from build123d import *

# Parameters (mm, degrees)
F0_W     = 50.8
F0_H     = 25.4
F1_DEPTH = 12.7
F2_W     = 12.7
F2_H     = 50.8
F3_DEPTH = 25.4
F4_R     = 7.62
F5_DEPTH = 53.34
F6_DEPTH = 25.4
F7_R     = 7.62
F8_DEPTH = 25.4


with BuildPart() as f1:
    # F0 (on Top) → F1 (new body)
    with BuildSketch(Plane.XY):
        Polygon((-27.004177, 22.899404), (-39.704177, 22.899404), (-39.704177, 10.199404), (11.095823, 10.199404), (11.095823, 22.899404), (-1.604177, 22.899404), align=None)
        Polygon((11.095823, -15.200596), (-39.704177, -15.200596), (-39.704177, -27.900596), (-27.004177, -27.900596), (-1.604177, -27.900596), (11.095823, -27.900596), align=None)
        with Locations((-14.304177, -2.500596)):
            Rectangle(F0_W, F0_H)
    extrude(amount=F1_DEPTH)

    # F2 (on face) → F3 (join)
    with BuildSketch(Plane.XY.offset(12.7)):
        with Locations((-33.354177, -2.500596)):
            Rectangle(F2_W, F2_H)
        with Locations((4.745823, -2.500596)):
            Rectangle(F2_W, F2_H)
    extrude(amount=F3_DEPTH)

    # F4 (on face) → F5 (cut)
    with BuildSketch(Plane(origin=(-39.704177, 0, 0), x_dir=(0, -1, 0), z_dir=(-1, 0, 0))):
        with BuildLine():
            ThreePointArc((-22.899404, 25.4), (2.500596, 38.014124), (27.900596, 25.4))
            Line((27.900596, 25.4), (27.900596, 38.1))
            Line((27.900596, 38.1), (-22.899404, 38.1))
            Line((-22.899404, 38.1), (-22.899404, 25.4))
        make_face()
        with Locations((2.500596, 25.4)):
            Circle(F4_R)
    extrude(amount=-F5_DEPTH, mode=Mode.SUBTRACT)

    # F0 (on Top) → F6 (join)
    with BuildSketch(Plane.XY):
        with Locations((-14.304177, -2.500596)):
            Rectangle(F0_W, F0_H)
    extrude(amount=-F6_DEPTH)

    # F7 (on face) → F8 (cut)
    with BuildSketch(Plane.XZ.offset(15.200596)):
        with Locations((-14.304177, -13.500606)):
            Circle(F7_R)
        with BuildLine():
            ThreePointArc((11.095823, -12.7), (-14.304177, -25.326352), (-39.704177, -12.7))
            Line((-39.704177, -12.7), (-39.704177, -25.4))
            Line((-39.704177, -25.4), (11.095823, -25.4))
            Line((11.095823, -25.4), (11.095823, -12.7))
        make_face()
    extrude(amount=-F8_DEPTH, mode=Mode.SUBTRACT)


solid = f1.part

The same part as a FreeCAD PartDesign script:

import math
import FreeCAD as App
import Part
import Sketcher
from FreeCAD import Vector
Q = App.Units.Quantity

doc = App.newDocument("Part")
params = doc.addObject("Spreadsheet::Sheet", "Params")
for row, (alias, value) in enumerate([
    ("sketch1_width", "2 in"),
    ("pad1_length", "0.5 in"),
    ("sketch2_height", "2 in"),
    ("sketch2_width", "0.5 in"),
    ("pad2_length", "1 in"),
    ("sketch3_diameter", "0.6 in"),
    ("sketch3_width", "2 in"),
    ("sketch3_height", "0.5 in"),
    ("pocket1_length", "2.1 in"),
    ("sketch4_width", "2 in"),
    ("sketch4_height", "1 in"),
    ("pad3_length", "1 in"),
    ("sketch5_diameter", "0.6 in"),
    ("sketch5_width", "2 in"),
    ("sketch5_height", "0.5 in"),
    ("pocket2_length", "1 in"),
], start=1):
    params.set(f"A{row}", alias)
    params.set(f"B{row}", "=" + value)
    params.setAlias(f"B{row}", alias)

body = doc.addObject("PartDesign::Body", "Body")

# Sketch on XY plane
sketch1 = doc.addObject("Sketcher::SketchObject", "Sketch")
body.addObject(sketch1)
sketch1.AttachmentSupport = (doc.XY_Plane, [""])
sketch1.MapMode = "FlatFace"
sketch1.addGeometry([
    Part.LineSegment(Vector(-40, 23, 0), Vector(-40, -28, 0)),
    Part.LineSegment(Vector(-40, -28, 0), Vector(11, -28, 0)),
    Part.LineSegment(Vector(11, -28, 0), Vector(11, 23, 0)),
    Part.LineSegment(Vector(11, 23, 0), Vector(-40, 23, 0)),
], False)
sketch1.addConstraint([
    Sketcher.Constraint("Coincident", 0, 2, 1, 1),
    Sketcher.Constraint("Coincident", 1, 2, 2, 1),
    Sketcher.Constraint("Coincident", 2, 2, 3, 1),
    Sketcher.Constraint("Coincident", 3, 2, 0, 1),
    Sketcher.Constraint("Vertical", 0),
    Sketcher.Constraint("Horizontal", 1),
    Sketcher.Constraint("Vertical", 2),
    Sketcher.Constraint("Horizontal", 3),
    Sketcher.Constraint("Equal", 3, 0),
    Sketcher.Constraint("DistanceX", 1, 1, 1, 2, Q("2 in")),
    Sketcher.Constraint("DistanceX", 0, 2, -1, 1, 39.704177),
    Sketcher.Constraint("DistanceY", 0, 2, -1, 1, 27.900596),
])
sketch1.setExpression("Constraints[9]", "Params.sketch1_width")
pad1 = doc.addObject("PartDesign::Pad", "Pad")
body.addObject(pad1)
pad1.Profile = sketch1
pad1.setExpression("Length", "Params.pad1_length")

# Sketch on XY plane
sketch2 = doc.addObject("Sketcher::SketchObject", "Sketch001")
body.addObject(sketch2)
sketch2.AttachmentSupport = (doc.XY_Plane, [""])
sketch2.MapMode = "FlatFace"
sketch2.AttachmentOffset = App.Placement(Vector(0, 0, 0.5 * 25.4), App.Rotation())
sketch2.addGeometry([
    Part.LineSegment(Vector(-40, 23, 0), Vector(-40, -28, 0)),  # 0
    Part.LineSegment(Vector(-40, -28, 0), Vector(-27, -28, 0)),  # 1
    Part.LineSegment(Vector(-27, -28, 0), Vector(-27, 23, 0)),  # 2
    Part.LineSegment(Vector(-27, 23, 0), Vector(-40, 23, 0)),  # 3
    Part.LineSegment(Vector(-2, 23, 0), Vector(-2, -28, 0)),  # 4
    Part.LineSegment(Vector(-2, -28, 0), Vector(11, -28, 0)),  # 5
    Part.LineSegment(Vector(11, -28, 0), Vector(11, 23, 0)),  # 6
    Part.LineSegment(Vector(11, 23, 0), Vector(-2, 23, 0)),  # 7
], False)
sketch2.addConstraint([
    Sketcher.Constraint("Coincident", 0, 2, 1, 1),
    Sketcher.Constraint("Coincident", 1, 2, 2, 1),
    Sketcher.Constraint("Coincident", 2, 2, 3, 1),
    Sketcher.Constraint("Coincident", 3, 2, 0, 1),
    Sketcher.Constraint("Coincident", 4, 2, 5, 1),
    Sketcher.Constraint("Coincident", 5, 2, 6, 1),
    Sketcher.Constraint("Coincident", 6, 2, 7, 1),
    Sketcher.Constraint("Coincident", 7, 2, 4, 1),
    Sketcher.Constraint("Vertical", 0),
    Sketcher.Constraint("Horizontal", 1),
    Sketcher.Constraint("Vertical", 2),
    Sketcher.Constraint("Horizontal", 3),
    Sketcher.Constraint("Vertical", 4),
    Sketcher.Constraint("Horizontal", 5),
    Sketcher.Constraint("Vertical", 6),
    Sketcher.Constraint("Horizontal", 7),
    Sketcher.Constraint("Horizontal", 1, 2, 4, 2),
    Sketcher.Constraint("Horizontal", 3, 2, 6, 2),
    Sketcher.Constraint("Equal", 3, 5),
    Sketcher.Constraint("DistanceY", 0, 2, 0, 1, Q("2 in")),
    Sketcher.Constraint("DistanceX", 1, 1, 1, 2, Q("0.5 in")),
    Sketcher.Constraint("DistanceX", 1, 2, 4, 2, Q("1 in")),
    Sketcher.Constraint("DistanceX", 0, 2, -1, 1, 39.704177),
    Sketcher.Constraint("DistanceY", 0, 2, -1, 1, 27.900596),
])
sketch2.setExpression("Constraints[19]", "Params.sketch2_height")
sketch2.setExpression("Constraints[20]", "Params.sketch2_width")
pad2 = doc.addObject("PartDesign::Pad", "Pad001")
body.addObject(pad2)
pad2.Profile = sketch2
pad2.setExpression("Length", "Params.pad2_length")

# Sketch on YZ plane
sketch3 = doc.addObject("Sketcher::SketchObject", "Sketch002")
body.addObject(sketch3)
sketch3.AttachmentSupport = (doc.YZ_Plane, [""])
sketch3.MapMode = "FlatFace"
sketch3.AttachmentOffset = App.Placement(Vector(0, 0, -39.704177), App.Rotation())
sketch3.addGeometry([
    Part.ArcOfCircle(Part.Circle(Vector(-3, 6, 0), Vector(0, 0, 1), 32), math.radians(37), math.radians(143)),  # 0
    Part.LineSegment(Vector(-28, 25, 0), Vector(-28, 38, 0)),  # 1
    Part.LineSegment(Vector(-28, 38, 0), Vector(23, 38, 0)),  # 2
    Part.LineSegment(Vector(23, 38, 0), Vector(23, 25, 0)),  # 3
    Part.Circle(Vector(-3, 25, 0), Vector(0, 0, 1), 8),  # 4
], False)
sketch3.addConstraint([
    Sketcher.Constraint("Coincident", 0, 2, 1, 1),
    Sketcher.Constraint("Coincident", 1, 2, 2, 1),
    Sketcher.Constraint("Coincident", 2, 2, 3, 1),
    Sketcher.Constraint("Coincident", 3, 2, 0, 1),
    Sketcher.Constraint("Vertical", 1),
    Sketcher.Constraint("Horizontal", 2),
    Sketcher.Constraint("Vertical", 3),
    Sketcher.Constraint("Horizontal", 4, 3, 0, 2),
    Sketcher.Constraint("Horizontal", 0, 2, 3, 2),
    Sketcher.Constraint("Vertical", 0, 3, 4, 3),
    Sketcher.Constraint("Diameter", 4, Q("0.6 in")),
    Sketcher.Constraint("DistanceX", 2, 1, 2, 2, Q("2 in")),
    Sketcher.Constraint("DistanceY", 1, 1, 1, 2, Q("0.5 in")),
    Sketcher.Constraint("DistanceY", -1, 1, 4, 3, Q("1 in")),
    Sketcher.Constraint("Radius", 0, 31.879983),
    Sketcher.Constraint("DistanceX", 0, 3, -1, 1, 2.500596),
])
sketch3.setExpression("Constraints[10]", "Params.sketch3_diameter")
sketch3.setExpression("Constraints[11]", "Params.sketch3_width")
sketch3.setExpression("Constraints[12]", "Params.sketch3_height")
pocket1 = doc.addObject("PartDesign::Pocket", "Pocket")
body.addObject(pocket1)
pocket1.Profile = sketch3
pocket1.setExpression("Length", "Params.pocket1_length")
pocket1.Reversed = True

# Sketch on XY plane
sketch4 = doc.addObject("Sketcher::SketchObject", "Sketch003")
body.addObject(sketch4)
sketch4.AttachmentSupport = (doc.XY_Plane, [""])
sketch4.MapMode = "FlatFace"
sketch4.addGeometry([
    Part.LineSegment(Vector(-40, 10, 0), Vector(-40, -15, 0)),
    Part.LineSegment(Vector(-40, -15, 0), Vector(11, -15, 0)),
    Part.LineSegment(Vector(11, -15, 0), Vector(11, 10, 0)),
    Part.LineSegment(Vector(11, 10, 0), Vector(-40, 10, 0)),
], False)
sketch4.addConstraint([
    Sketcher.Constraint("Coincident", 0, 2, 1, 1),
    Sketcher.Constraint("Coincident", 1, 2, 2, 1),
    Sketcher.Constraint("Coincident", 2, 2, 3, 1),
    Sketcher.Constraint("Coincident", 3, 2, 0, 1),
    Sketcher.Constraint("Vertical", 0),
    Sketcher.Constraint("Horizontal", 1),
    Sketcher.Constraint("Vertical", 2),
    Sketcher.Constraint("Horizontal", 3),
    Sketcher.Constraint("DistanceX", 1, 1, 1, 2, Q("2 in")),
    Sketcher.Constraint("DistanceY", 0, 2, 0, 1, Q("1 in")),
    Sketcher.Constraint("DistanceX", 0, 2, -1, 1, 39.704177),
    Sketcher.Constraint("DistanceY", 0, 2, -1, 1, 15.200596),
])
sketch4.setExpression("Constraints[8]", "Params.sketch4_width")
sketch4.setExpression("Constraints[9]", "Params.sketch4_height")
pad3 = doc.addObject("PartDesign::Pad", "Pad002")
body.addObject(pad3)
pad3.Profile = sketch4
pad3.setExpression("Length", "Params.pad3_length")
pad3.Reversed = True

# Sketch on XZ plane
sketch5 = doc.addObject("Sketcher::SketchObject", "Sketch004")
body.addObject(sketch5)
sketch5.AttachmentSupport = (doc.XZ_Plane, [""])
sketch5.MapMode = "FlatFace"
sketch5.AttachmentOffset = App.Placement(Vector(0, 0, 15.200596), App.Rotation())
sketch5.addGeometry([
    Part.Circle(Vector(-14, -14, 0), Vector(0, 0, 1), 8),  # 0
    Part.ArcOfCircle(Part.Circle(Vector(-14, 7, 0), Vector(0, 0, 1), 32), math.radians(-143), math.radians(-37)),  # 1
    Part.LineSegment(Vector(-40, -13, 0), Vector(-40, -25, 0)),  # 2
    Part.LineSegment(Vector(-40, -25, 0), Vector(11, -25, 0)),  # 3
    Part.LineSegment(Vector(11, -25, 0), Vector(11, -13, 0)),  # 4
], False)
sketch5.addConstraint([
    Sketcher.Constraint("Coincident", 1, 1, 2, 1),
    Sketcher.Constraint("Coincident", 2, 2, 3, 1),
    Sketcher.Constraint("Coincident", 3, 2, 4, 1),
    Sketcher.Constraint("Coincident", 4, 2, 1, 2),
    Sketcher.Constraint("Vertical", 2),
    Sketcher.Constraint("Horizontal", 3),
    Sketcher.Constraint("Vertical", 4),
    Sketcher.Constraint("Horizontal", 1, 1, 4, 2),
    Sketcher.Constraint("Vertical", 0, 3, 1, 3),
    Sketcher.Constraint("Diameter", 0, Q("0.6 in")),
    Sketcher.Constraint("DistanceX", 3, 1, 3, 2, Q("2 in")),
    Sketcher.Constraint("DistanceY", 2, 2, 2, 1, Q("0.5 in")),
    Sketcher.Constraint("DistanceY", 2, 2, -1, 1, Q("1 in")),
    Sketcher.Constraint("Radius", 1, 31.861331),
    Sketcher.Constraint("DistanceX", 0, 3, -1, 1, 14.304177),
    Sketcher.Constraint("DistanceY", 0, 3, -1, 1, 13.500606),
])
sketch5.setExpression("Constraints[9]", "Params.sketch5_diameter")
sketch5.setExpression("Constraints[10]", "Params.sketch5_width")
sketch5.setExpression("Constraints[11]", "Params.sketch5_height")
pocket2 = doc.addObject("PartDesign::Pocket", "Pocket001")
body.addObject(pocket2)
pocket2.Profile = sketch5
pocket2.setExpression("Length", "Params.pocket2_length")

doc.recompute()
